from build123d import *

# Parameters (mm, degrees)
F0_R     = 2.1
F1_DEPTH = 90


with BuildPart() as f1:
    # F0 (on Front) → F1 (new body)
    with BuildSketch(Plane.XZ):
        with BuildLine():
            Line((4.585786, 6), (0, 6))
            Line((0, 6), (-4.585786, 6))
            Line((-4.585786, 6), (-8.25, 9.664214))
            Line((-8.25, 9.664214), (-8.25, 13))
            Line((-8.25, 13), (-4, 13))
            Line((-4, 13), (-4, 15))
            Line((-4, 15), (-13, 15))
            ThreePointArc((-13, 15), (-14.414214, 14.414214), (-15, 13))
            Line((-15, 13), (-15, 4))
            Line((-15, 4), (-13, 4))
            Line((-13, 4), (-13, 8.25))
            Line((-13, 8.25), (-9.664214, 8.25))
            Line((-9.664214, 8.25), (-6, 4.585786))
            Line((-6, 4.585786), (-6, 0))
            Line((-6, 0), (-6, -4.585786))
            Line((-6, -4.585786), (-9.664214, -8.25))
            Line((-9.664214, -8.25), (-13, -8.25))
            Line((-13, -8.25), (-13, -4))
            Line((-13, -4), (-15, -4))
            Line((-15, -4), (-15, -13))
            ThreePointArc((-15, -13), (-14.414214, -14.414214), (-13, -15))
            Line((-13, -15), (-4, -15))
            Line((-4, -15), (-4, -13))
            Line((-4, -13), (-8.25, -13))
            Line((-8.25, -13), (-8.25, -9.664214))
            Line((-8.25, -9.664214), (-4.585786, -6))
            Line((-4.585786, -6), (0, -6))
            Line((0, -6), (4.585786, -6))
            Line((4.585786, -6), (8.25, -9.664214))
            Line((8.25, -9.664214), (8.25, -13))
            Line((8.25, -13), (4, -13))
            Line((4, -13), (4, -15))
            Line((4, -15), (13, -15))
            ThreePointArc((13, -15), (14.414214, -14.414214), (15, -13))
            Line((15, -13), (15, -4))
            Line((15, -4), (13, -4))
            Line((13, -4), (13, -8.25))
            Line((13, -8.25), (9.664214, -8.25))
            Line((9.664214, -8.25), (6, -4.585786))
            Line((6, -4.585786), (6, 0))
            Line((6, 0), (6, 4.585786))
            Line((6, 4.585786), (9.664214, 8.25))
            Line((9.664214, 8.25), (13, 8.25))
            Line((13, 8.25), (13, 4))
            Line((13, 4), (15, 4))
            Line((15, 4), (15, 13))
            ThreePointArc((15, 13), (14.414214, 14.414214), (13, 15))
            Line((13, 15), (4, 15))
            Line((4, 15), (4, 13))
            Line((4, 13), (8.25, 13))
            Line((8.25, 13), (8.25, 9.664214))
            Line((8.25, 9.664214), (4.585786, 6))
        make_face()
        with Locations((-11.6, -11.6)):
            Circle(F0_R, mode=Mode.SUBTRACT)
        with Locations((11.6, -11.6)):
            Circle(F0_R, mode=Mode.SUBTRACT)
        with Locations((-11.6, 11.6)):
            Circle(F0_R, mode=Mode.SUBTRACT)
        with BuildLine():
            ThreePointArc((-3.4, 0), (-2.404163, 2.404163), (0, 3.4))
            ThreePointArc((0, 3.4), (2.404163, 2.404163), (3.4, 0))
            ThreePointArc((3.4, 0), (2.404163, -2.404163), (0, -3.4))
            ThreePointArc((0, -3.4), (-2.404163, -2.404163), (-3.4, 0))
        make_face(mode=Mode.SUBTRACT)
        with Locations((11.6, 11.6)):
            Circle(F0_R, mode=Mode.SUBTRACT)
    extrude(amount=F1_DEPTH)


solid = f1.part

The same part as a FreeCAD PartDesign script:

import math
import FreeCAD as App
import Part
import Sketcher

V = App.Vector
Q = App.Units.Quantity

doc = App.newDocument("Part")
params = doc.addObject("Spreadsheet::Sheet", "Params")
for row, (alias, value) in enumerate([
    ("sketch1_radius", "1.999999 mm"),
    ("sketch1_diameter", "4.2 mm"),
    ("sketch1_radius2", "3.4 mm"),
    ("sketch1_width", "9 mm"),
    ("sketch1_width2", "4.25 mm"),
    ("pad1_length", "90 mm"),
], start=1):
    params.set(f"A{row}", alias)
    params.set(f"B{row}", "=" + value)
    params.setAlias(f"B{row}", alias)

body = doc.addObject("PartDesign::Body", "Body")

# Sketch on XZ plane
sketch1 = body.newObject("Sketcher::SketchObject", "Sketch")
sketch1.AttachmentSupport = (doc.getObject("XZ_Plane"), [""])
sketch1.MapMode = "FlatFace"
sketch1.addGeometry(Part.LineSegment(V(4.6, 6, 0), V(-4.6, 6, 0)), False)
sketch1.addGeometry(Part.LineSegment(V(-4.6, 6, 0), V(-8.2, 9.7, 0)), False)
sketch1.addGeometry(Part.LineSegment(V(-8.2, 9.7, 0), V(-8.2, 13, 0)), False)
sketch1.addGeometry(Part.LineSegment(V(-8.2, 13, 0), V(-4, 13, 0)), False)
sketch1.addGeometry(Part.LineSegment(V(-4, 13, 0), V(-4, 15, 0)), False)
sketch1.addGeometry(Part.LineSegment(V(-4, 15, 0), V(-13, 15, 0)), False)
sketch1.addGeometry(Part.ArcOfCircle(Part.Circle(V(-13, 13, 0), V(0, 0, 1), 2), math.radians(90), math.radians(180)), False)
sketch1.addGeometry(Part.LineSegment(V(-15, 13, 0), V(-15, 4, 0)), False)
sketch1.addGeometry(Part.LineSegment(V(-15, 4, 0), V(-13, 4, 0)), False)
sketch1.addGeometry(Part.LineSegment(V(-13, 4, 0), V(-13, 8.2, 0)), False)
sketch1.addGeometry(Part.LineSegment(V(-13, 8.2, 0), V(-9.7, 8.2, 0)), False)
sketch1.addGeometry(Part.LineSegment(V(-9.7, 8.2, 0), V(-6, 4.6, 0)), False)
sketch1.addGeometry(Part.LineSegment(V(-6, 4.6, 0), V(-6, -4.6, 0)), False)
sketch1.addGeometry(Part.LineSegment(V(-6, -4.6, 0), V(-9.7, -8.2, 0)), False)
sketch1.addGeometry(Part.LineSegment(V(-9.7, -8.2, 0), V(-13, -8.2, 0)), False)
sketch1.addGeometry(Part.LineSegment(V(-13, -8.2, 0), V(-13, -4, 0)), False)
sketch1.addGeometry(Part.LineSegment(V(-13, -4, 0), V(-15, -4, 0)), False)
sketch1.addGeometry(Part.LineSegment(V(-15, -4, 0), V(-15, -13, 0)), False)
sketch1.addGeometry(Part.ArcOfCircle(Part.Circle(V(-13, -13, 0), V(0, 0, 1), 2), math.radians(180), math.radians(270)), False)
sketch1.addGeometry(Part.LineSegment(V(-13, -15, 0), V(-4, -15, 0)), False)
sketch1.addGeometry(Part.LineSegment(V(-4, -15, 0), V(-4, -13, 0)), False)
sketch1.addGeometry(Part.LineSegment(V(-4, -13, 0), V(-8.2, -13, 0)), False)
sketch1.addGeometry(Part.LineSegment(V(-8.2, -13, 0), V(-8.2, -9.7, 0)), False)
sketch1.addGeometry(Part.LineSegment(V(-8.2, -9.7, 0), V(-4.6, -6, 0)), False)
sketch1.addGeometry(Part.LineSegment(V(-4.6, -6, 0), V(4.6, -6, 0)), False)
sketch1.addGeometry(Part.LineSegment(V(4.6, -6, 0), V(8.2, -9.7, 0)), False)
sketch1.addGeometry(Part.LineSegment(V(8.2, -9.7, 0), V(8.2, -13, 0)), False)
sketch1.addGeometry(Part.LineSegment(V(8.2, -13, 0), V(4, -13, 0)), False)
sketch1.addGeometry(Part.LineSegment(V(4, -13, 0), V(4, -15, 0)), False)
sketch1.addGeometry(Part.LineSegment(V(4, -15, 0), V(13, -15, 0)), False)
sketch1.addGeometry(Part.ArcOfCircle(Part.Circle(V(13, -13, 0), V(0, 0, 1), 2), math.radians(-90), math.radians(0)), False)
sketch1.addGeometry(Part.LineSegment(V(15, -13, 0), V(15, -4, 0)), False)
sketch1.addGeometry(Part.LineSegment(V(15, -4, 0), V(13, -4, 0)), False)
sketch1.addGeometry(Part.LineSegment(V(13, -4, 0), V(13, -8.2, 0)), False)
sketch1.addGeometry(Part.LineSegment(V(13, -8.2, 0), V(9.7, -8.2, 0)), False)
sketch1.addGeometry(Part.LineSegment(V(9.7, -8.2, 0), V(6, -4.6, 0)), False)
sketch1.addGeometry(Part.LineSegment(V(6, -4.6, 0), V(6, 4.6, 0)), False)
sketch1.addGeometry(Part.LineSegment(V(6, 4.6, 0), V(9.7, 8.2, 0)), False)
sketch1.addGeometry(Part.LineSegment(V(9.7, 8.2, 0), V(13, 8.2, 0)), False)
sketch1.addGeometry(Part.LineSegment(V(13, 8.2, 0), V(13, 4, 0)), False)
sketch1.addGeometry(Part.LineSegment(V(13, 4, 0), V(15, 4, 0)), False)
sketch1.addGeometry(Part.LineSegment(V(15, 4, 0), V(15, 13, 0)), False)
sketch1.addGeometry(Part.ArcOfCircle(Part.Circle(V(13, 13, 0), V(0, 0, 1), 2), math.radians(0), math.radians(90)), False)
sketch1.addGeometry(Part.LineSegment(V(13, 15, 0), V(4, 15, 0)), False)
sketch1.addGeometry(Part.LineSegment(V(4, 15, 0), V(4, 13, 0)), False)
sketch1.addGeometry(Part.LineSegment(V(4, 13, 0), V(8.2, 13, 0)), False)
sketch1.addGeometry(Part.LineSegment(V(8.2, 13, 0), V(8.2, 9.7, 0)), False)
sketch1.addGeometry(Part.LineSegment(V(8.2, 9.7, 0), V(4.6, 6, 0)), False)
sketch1.addGeometry(Part.Circle(V(-11.6, -11.6, 0), V(0, 0, 1), 2.1), False)
sketch1.addGeometry(Part.Circle(V(11.6, -11.6, 0), V(0, 0, 1), 2.1), False)
sketch1.addGeometry(Part.Circle(V(-11.6, 11.6, 0), V(0, 0, 1), 2.1), False)
sketch1.addGeometry(Part.ArcOfCircle(Part.Circle(V(0, 0, 0), V(0, 0, 1), 3.4), math.radians(-180), math.radians(-90)), False)
sketch1.addGeometry(Part.ArcOfCircle(Part.Circle(V(0, 0, 0), V(0, 0, 1), 3.4), math.radians(90), math.radians(180)), False)
sketch1.addGeometry(Part.ArcOfCircle(Part.Circle(V(0, 0, 0), V(0, 0, 1), 3.4), math.radians(0), math.radians(90)), False)
sketch1.addGeometry(Part.ArcOfCircle(Part.Circle(V(0, 0, 0), V(0, 0, 1), 3.4), math.radians(-90), math.radians(0)), False)
sketch1.addGeometry(Part.Circle(V(11.6, 11.6, 0), V(0, 0, 1), 2.1), False)
sketch1.addConstraint(Sketcher.Constraint("Coincident", 0, 2, 1, 1))
sketch1.addConstraint(Sketcher.Constraint("Coincident", 1, 2, 2, 1))
sketch1.addConstraint(Sketcher.Constraint("Coincident", 2, 2, 3, 1))
sketch1.addConstraint(Sketcher.Constraint("Coincident", 3, 2, 4, 1))
sketch1.addConstraint(Sketcher.Constraint("Coincident", 4, 2, 5, 1))
sketch1.addConstraint(Sketcher.Constraint("Tangent", 5, 2, 6, 1))
sketch1.addConstraint(Sketcher.Constraint("Tangent", 6, 2, 7, 1))
sketch1.addConstraint(Sketcher.Constraint("Coincident", 7, 2, 8, 1))
sketch1.addConstraint(Sketcher.Constraint("Coincident", 8, 2, 9, 1))
sketch1.addConstraint(Sketcher.Constraint("Coincident", 9, 2, 10, 1))
sketch1.addConstraint(Sketcher.Constraint("Coincident", 10, 2, 11, 1))
sketch1.addConstraint(Sketcher.Constraint("Coincident", 11, 2, 12, 1))
sketch1.addConstraint(Sketcher.Constraint("Coincident", 12, 2, 13, 1))
sketch1.addConstraint(Sketcher.Constraint("Coincident", 13, 2, 14, 1))
sketch1.addConstraint(Sketcher.Constraint("Coincident", 14, 2, 15, 1))
sketch1.addConstraint(Sketcher.Constraint("Coincident", 15, 2, 16, 1))
sketch1.addConstraint(Sketcher.Constraint("Coincident", 16, 2, 17, 1))
sketch1.addConstraint(Sketcher.Constraint("Tangent", 17, 2, 18, 1))
sketch1.addConstraint(Sketcher.Constraint("Tangent", 18, 2, 19, 1))
sketch1.addConstraint(Sketcher.Constraint("Coincident", 19, 2, 20, 1))
sketch1.addConstraint(Sketcher.Constraint("Coincident", 20, 2, 21, 1))
sketch1.addConstraint(Sketcher.Constraint("Coincident", 21, 2, 22, 1))
sketch1.addConstraint(Sketcher.Constraint("Coincident", 22, 2, 23, 1))
sketch1.addConstraint(Sketcher.Constraint("Coincident", 23, 2, 24, 1))
sketch1.addConstraint(Sketcher.Constraint("Coincident", 24, 2, 25, 1))
sketch1.addConstraint(Sketcher.Constraint("Coincident", 25, 2, 26, 1))
sketch1.addConstraint(Sketcher.Constraint("Coincident", 26, 2, 27, 1))
sketch1.addConstraint(Sketcher.Constraint("Coincident", 27, 2, 28, 1))
sketch1.addConstraint(Sketcher.Constraint("Coincident", 28, 2, 29, 1))
sketch1.addConstraint(Sketcher.Constraint("Tangent", 29, 2, 30, 1))
sketch1.addConstraint(Sketcher.Constraint("Tangent", 30, 2, 31, 1))
sketch1.addConstraint(Sketcher.Constraint("Coincident", 31, 2, 32, 1))
sketch1.addConstraint(Sketcher.Constraint("Coincident", 32, 2, 33, 1))
sketch1.addConstraint(Sketcher.Constraint("Coincident", 33, 2, 34, 1))
sketch1.addConstraint(Sketcher.Constraint("Coincident", 34, 2, 35, 1))
sketch1.addConstraint(Sketcher.Constraint("Coincident", 35, 2, 36, 1))
sketch1.addConstraint(Sketcher.Constraint("Coincident", 36, 2, 37, 1))
sketch1.addConstraint(Sketcher.Constraint("Coincident", 37, 2, 38, 1))
sketch1.addConstraint(Sketcher.Constraint("Coincident", 38, 2, 39, 1))
sketch1.addConstraint(Sketcher.Constraint("Coincident", 39, 2, 40, 1))
sketch1.addConstraint(Sketcher.Constraint("Coincident", 40, 2, 41, 1))
sketch1.addConstraint(Sketcher.Constraint("Tangent", 41, 2, 42, 1))
sketch1.addConstraint(Sketcher.Constraint("Tangent", 42, 2, 43, 1))
sketch1.addConstraint(Sketcher.Constraint("Coincident", 43, 2, 44, 1))
sketch1.addConstraint(Sketcher.Constraint("Coincident", 44, 2, 45, 1))
sketch1.addConstraint(Sketcher.Constraint("Coincident", 45, 2, 46, 1))
sketch1.addConstraint(Sketcher.Constraint("Coincident", 46, 2, 47, 1))
sketch1.addConstraint(Sketcher.Constraint("Coincident", 47, 2, 0, 1))
sketch1.addConstraint(Sketcher.Constraint("Tangent", 51, 1, 52, 2))
sketch1.addConstraint(Sketcher.Constraint("Tangent", 52, 1, 53, 2))
sketch1.addConstraint(Sketcher.Constraint("Tangent", 53, 1, 54, 2))
sketch1.addConstraint(Sketcher.Constraint("Tangent", 54, 1, 51, 2))
sketch1.addConstraint(Sketcher.Constraint("Horizontal", 0))
sketch1.addConstraint(Sketcher.Constraint("Vertical", 2))
sketch1.addConstraint(Sketcher.Constraint("Horizontal", 3))
sketch1.addConstraint(Sketcher.Constraint("Vertical", 4))
sketch1.addConstraint(Sketcher.Constraint("Horizontal", 5))
sketch1.addConstraint(Sketcher.Constraint("Vertical", 7))
sketch1.addConstraint(Sketcher.Constraint("Horizontal", 8))
sketch1.addConstraint(Sketcher.Constraint("Vertical", 9))
sketch1.addConstraint(Sketcher.Constraint("Horizontal", 10))
sketch1.addConstraint(Sketcher.Constraint("Vertical", 12))
sketch1.addConstraint(Sketcher.Constraint("Horizontal", 14))
sketch1.addConstraint(Sketcher.Constraint("Vertical", 15))
sketch1.addConstraint(Sketcher.Constraint("Horizontal", 16))
sketch1.addConstraint(Sketcher.Constraint("Vertical", 17))
sketch1.addConstraint(Sketcher.Constraint("Horizontal", 19))
sketch1.addConstraint(Sketcher.Constraint("Vertical", 20))
sketch1.addConstraint(Sketcher.Constraint("Horizontal", 21))
sketch1.addConstraint(Sketcher.Constraint("Vertical", 22))
sketch1.addConstraint(Sketcher.Constraint("Horizontal", 24))
sketch1.addConstraint(Sketcher.Constraint("Vertical", 26))
sketch1.addConstraint(Sketcher.Constraint("Horizontal", 27))
sketch1.addConstraint(Sketcher.Constraint("Vertical", 28))
sketch1.addConstraint(Sketcher.Constraint("Horizontal", 29))
sketch1.addConstraint(Sketcher.Constraint("Vertical", 31))
sketch1.addConstraint(Sketcher.Constraint("Horizontal", 32))
sketch1.addConstraint(Sketcher.Constraint("Vertical", 33))
sketch1.addConstraint(Sketcher.Constraint("Horizontal", 34))
sketch1.addConstraint(Sketcher.Constraint("Vertical", 36))
sketch1.addConstraint(Sketcher.Constraint("Horizontal", 38))
sketch1.addConstraint(Sketcher.Constraint("Vertical", 39))
sketch1.addConstraint(Sketcher.Constraint("Horizontal", 40))
sketch1.addConstraint(Sketcher.Constraint("Vertical", 41))
sketch1.addConstraint(Sketcher.Constraint("Horizontal", 43))
sketch1.addConstraint(Sketcher.Constraint("Vertical", 44))
sketch1.addConstraint(Sketcher.Constraint("Horizontal", 45))
sketch1.addConstraint(Sketcher.Constraint("Vertical", 46))
sketch1.addConstraint(Sketcher.Constraint("Coincident", 51, 3, -1, 1))
sketch1.addConstraint(Sketcher.Constraint("Equal", 6, 18))
sketch1.addConstraint(Sketcher.Constraint("Equal", 18, 30))
sketch1.addConstraint(Sketcher.Constraint("Equal", 30, 42))
sketch1.addConstraint(Sketcher.Constraint("Equal", 48, 49))
sketch1.addConstraint(Sketcher.Constraint("Equal", 49, 50))
sketch1.addConstraint(Sketcher.Constraint("Equal", 51, 52))
sketch1.addConstraint(Sketcher.Constraint("Equal", 50, 55))
sketch1.addConstraint(Sketcher.Constraint("Symmetric", 6, 3, 30, 3, -1, 1))
sketch1.addConstraint(Sketcher.Constraint("Symmetric", 18, 3, 42, 3, -1, 1))
sketch1.addConstraint(Sketcher.Constraint("Symmetric", 49, 3, 50, 3, -1, 1))
sketch1.addConstraint(Sketcher.Constraint("Symmetric", 48, 3, 55, 3, -1, 1))
sketch1.addConstraint(Sketcher.Constraint("Symmetric", 0, 2, 24, 2, -1, 1))
sketch1.addConstraint(Sketcher.Constraint("Symmetric", 1, 2, 25, 2, -1, 1))
sketch1.addConstraint(Sketcher.Constraint("Symmetric", 3, 2, 27, 2, -1, 1))
sketch1.addConstraint(Sketcher.Constraint("Symmetric", 8, 2, 32, 2, -1, 1))
sketch1.addConstraint(Sketcher.Constraint("Symmetric", 10, 2, 34, 2, -1, 1))
sketch1.addConstraint(Sketcher.Constraint("Symmetric", 11, 2, 35, 2, -1, 1))
sketch1.addConstraint(Sketcher.Constraint("Symmetric", 13, 2, 37, 2, -1, 1))
sketch1.addConstraint(Sketcher.Constraint("Symmetric", 15, 2, 39, 2, -1, 1))
sketch1.addConstraint(Sketcher.Constraint("Symmetric", 20, 2, 44, 2, -1, 1))
sketch1.addConstraint(Sketcher.Constraint("Symmetric", 22, 2, 46, 2, -1, 1))
sketch1.addConstraint(Sketcher.Constraint("Symmetric", 18, 3, 30, 3, -2))
sketch1.addConstraint(Sketcher.Constraint("Symmetric", 48, 3, 49, 3, -2))
sketch1.addConstraint(Sketcher.Constraint("Symmetric", 22, 2, 25, 2, -2))
sketch1.addConstraint(Sketcher.Constraint("Symmetric", 20, 2, 27, 2, -2))
sketch1.addConstraint(Sketcher.Constraint("Symmetric", 15, 2, 32, 2, -2))
sketch1.addConstraint(Sketcher.Constraint("Symmetric", 13, 2, 34, 2, -2))
sketch1.addConstraint(Sketcher.Constraint("PointOnObject", 51, 1, -1))
sketch1.addConstraint(Sketcher.Constraint("PointOnObject", 52, 1, -2))
sketch1.addConstraint(Sketcher.Constraint("PointOnObject", 53, 1, -1))
sketch1.addConstraint(Sketcher.Constraint("PointOnObject", 54, 1, -2))
sketch1.addConstraint(Sketcher.Constraint("Parallel", 1, 11))
sketch1.addConstraint(Sketcher.Constraint("Perpendicular", 11, 13))
sketch1.addConstraint(Sketcher.Constraint("Parallel", 13, 23))
sketch1.addConstraint(Sketcher.Constraint("Perpendicular", 35, 37))
sketch1.addConstraint(Sketcher.Constraint("Parallel", 37, 47))
sketch1.addConstraint(Sketcher.Constraint("Horizontal", 42, 3, 2, 2))
sketch1.addConstraint(Sketcher.Constraint("Horizontal", 12, 2, 35, 2))
sketch1.addConstraint(Sketcher.Constraint("Vertical", 5, 2, 8, 2))
sketch1.addConstraint(Sketcher.Constraint("Equal", 38, 2))
sketch1.addConstraint(Sketcher.Constraint("Equal", 43, 7))
sketch1.addConstraint(Sketcher.Constraint("Equal", 45, 9))
sketch1.addConstraint(Sketcher.Constraint("Equal", 24, 12))
sketch1.addConstraint(Sketcher.Constraint("Equal", 1, 11))
sketch1.addConstraint(Sketcher.Constraint("Radius", 6, Q("1.999999 mm")))
sketch1.addConstraint(Sketcher.Constraint("Diameter", 48, Q("4.2 mm")))
sketch1.addConstraint(Sketcher.Constraint("Radius", 51, Q("3.4 mm")))
sketch1.addConstraint(Sketcher.Constraint("DistanceX", 5, 2, 5, 1, Q("9 mm")))
sketch1.addConstraint(Sketcher.Constraint("DistanceX", 6, 3, -1, 1, Q("13.000001 mm")))
sketch1.addConstraint(Sketcher.Constraint("DistanceY", -1, 1, 0, 2, Q("6 mm")))
sketch1.addConstraint(Sketcher.Constraint("DistanceX", 3, 1, 3, 2, Q("4.25 mm")))
sketch1.addConstraint(Sketcher.Constraint("DistanceX", 48, 3, -1, 1, Q("11.6 mm")))
sketch1.addConstraint(Sketcher.Constraint("DistanceY", 48, 3, -1, 1, Q("11.6 mm")))
sketch1.addConstraint(Sketcher.Constraint("Distance", 1, Q("5.181981 mm")))
sketch1.setExpression("Constraints[133]", "Params.sketch1_radius")
sketch1.setExpression("Constraints[134]", "Params.sketch1_diameter")
sketch1.setExpression("Constraints[135]", "Params.sketch1_radius2")
sketch1.setExpression("Constraints[136]", "Params.sketch1_width")
sketch1.setExpression("Constraints[139]", "Params.sketch1_width2")
pad1 = body.newObject("PartDesign::Pad", "Pad")
pad1.Profile = sketch1
pad1.setExpression("Length", "Params.pad1_length")

doc.recompute()
